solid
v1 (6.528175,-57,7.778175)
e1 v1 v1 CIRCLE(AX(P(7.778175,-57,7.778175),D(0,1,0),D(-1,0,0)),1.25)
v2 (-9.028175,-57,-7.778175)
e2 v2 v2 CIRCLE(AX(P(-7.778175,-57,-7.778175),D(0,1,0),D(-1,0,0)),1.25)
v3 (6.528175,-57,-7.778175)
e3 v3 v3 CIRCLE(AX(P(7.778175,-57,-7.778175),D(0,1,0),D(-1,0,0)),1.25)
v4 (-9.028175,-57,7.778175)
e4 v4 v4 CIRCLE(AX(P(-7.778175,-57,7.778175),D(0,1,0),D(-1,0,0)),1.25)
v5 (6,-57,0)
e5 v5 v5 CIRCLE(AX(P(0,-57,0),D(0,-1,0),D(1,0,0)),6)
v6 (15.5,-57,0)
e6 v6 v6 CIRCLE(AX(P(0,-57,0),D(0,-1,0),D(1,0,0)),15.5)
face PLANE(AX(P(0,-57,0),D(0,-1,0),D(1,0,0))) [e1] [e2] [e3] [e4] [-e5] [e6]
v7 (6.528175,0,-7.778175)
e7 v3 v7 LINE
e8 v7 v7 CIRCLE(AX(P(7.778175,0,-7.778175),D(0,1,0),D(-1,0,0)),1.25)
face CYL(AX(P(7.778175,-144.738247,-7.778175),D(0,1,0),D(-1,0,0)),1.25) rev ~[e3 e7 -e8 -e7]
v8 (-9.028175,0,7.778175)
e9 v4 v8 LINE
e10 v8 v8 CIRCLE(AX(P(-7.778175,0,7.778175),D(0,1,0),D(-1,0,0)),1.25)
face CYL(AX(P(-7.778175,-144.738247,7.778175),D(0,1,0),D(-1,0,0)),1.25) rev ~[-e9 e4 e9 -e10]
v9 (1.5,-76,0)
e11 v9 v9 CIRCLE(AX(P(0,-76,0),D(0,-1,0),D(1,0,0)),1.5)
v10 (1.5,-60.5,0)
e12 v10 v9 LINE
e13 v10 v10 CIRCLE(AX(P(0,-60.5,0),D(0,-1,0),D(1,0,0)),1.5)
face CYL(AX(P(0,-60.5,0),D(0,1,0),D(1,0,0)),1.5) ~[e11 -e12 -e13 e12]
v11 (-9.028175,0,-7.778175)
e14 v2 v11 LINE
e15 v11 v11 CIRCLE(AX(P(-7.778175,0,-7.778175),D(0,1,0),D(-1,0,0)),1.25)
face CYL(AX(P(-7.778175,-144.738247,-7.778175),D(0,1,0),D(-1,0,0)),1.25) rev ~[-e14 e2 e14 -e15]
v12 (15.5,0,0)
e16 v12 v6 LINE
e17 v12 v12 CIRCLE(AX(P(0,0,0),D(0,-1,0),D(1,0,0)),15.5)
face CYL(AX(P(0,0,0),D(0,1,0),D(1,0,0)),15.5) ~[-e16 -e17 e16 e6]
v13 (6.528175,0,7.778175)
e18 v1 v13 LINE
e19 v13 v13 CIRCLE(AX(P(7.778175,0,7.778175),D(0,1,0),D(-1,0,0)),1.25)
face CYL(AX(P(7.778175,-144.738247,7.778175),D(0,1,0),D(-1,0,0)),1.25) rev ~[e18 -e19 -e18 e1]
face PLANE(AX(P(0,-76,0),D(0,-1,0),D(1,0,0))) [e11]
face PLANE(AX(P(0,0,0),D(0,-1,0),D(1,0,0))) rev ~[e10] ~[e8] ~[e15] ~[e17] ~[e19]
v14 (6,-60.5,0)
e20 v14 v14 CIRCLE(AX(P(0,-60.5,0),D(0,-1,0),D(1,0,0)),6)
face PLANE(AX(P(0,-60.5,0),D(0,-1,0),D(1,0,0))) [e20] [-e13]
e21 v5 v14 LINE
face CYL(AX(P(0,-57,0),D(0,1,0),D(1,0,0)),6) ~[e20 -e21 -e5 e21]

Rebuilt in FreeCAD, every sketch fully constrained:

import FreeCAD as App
import Part
import Sketcher

V = App.Vector

doc = App.newDocument("Part")
body = doc.addObject("PartDesign::Body", "Body")

sketch1 = body.newObject("Sketcher::SketchObject", "Sketch")
sketch1.AttachmentSupport = (doc.getObject("XZ_Plane"), [""])
sketch1.MapMode = "FlatFace"
sketch1.addGeometry(Part.Circle(V(0, 0, 0), V(0, 0, 1), 16), False)
sketch1.addConstraint([
    Sketcher.Constraint("Coincident", 0, 3, -1, 1),
    Sketcher.Constraint("Diameter", 0, 31.0),
])
pad1 = body.newObject("PartDesign::Pad", "Pad")
pad1.Profile = sketch1
pad1.Length = 57

sketch2 = body.newObject("Sketcher::SketchObject", "Sketch001")
sketch2.AttachmentSupport = (doc.getObject("XZ_Plane"), [""])
sketch2.MapMode = "FlatFace"
sketch2.AttachmentOffset = App.Placement(V(0, 0, 57), App.Rotation())
sketch2.addGeometry(Part.Circle(V(0, 0, 0), V(0, 0, 1), 6), False)
sketch2.addConstraint([
    Sketcher.Constraint("Coincident", 0, 3, -1, 1),
    Sketcher.Constraint("Diameter", 0, 12.0),
])
pad2 = body.newObject("PartDesign::Pad", "Pad001")
pad2.Profile = sketch2
pad2.Length = 3.5

sketch3 = body.newObject("Sketcher::SketchObject", "Sketch002")
sketch3.AttachmentSupport = (doc.getObject("XZ_Plane"), [""])
sketch3.MapMode = "FlatFace"
sketch3.AttachmentOffset = App.Placement(V(0, 0, 60.5), App.Rotation())
sketch3.addGeometry(Part.Circle(V(0, 0, 0), V(0, 0, 1), 1.5), False)
sketch3.addConstraint([
    Sketcher.Constraint("Coincident", 0, 3, -1, 1),
    Sketcher.Constraint("Diameter", 0, 3.0),
])
pad3 = body.newObject("PartDesign::Pad", "Pad002")
pad3.Profile = sketch3
pad3.Length = 15.5

sketch4 = body.newObject("Sketcher::SketchObject", "Sketch003")
sketch4.AttachmentSupport = (doc.getObject("XZ_Plane"), [""])
sketch4.MapMode = "FlatFace"
sketch4.AttachmentOffset = App.Placement(V(0, 0, 57), App.Rotation())
sketch4.addGeometry([
    Part.Circle(V(-7.8, 7.8, 0), V(0, 0, 1), 1.2),
    Part.Circle(V(7.8, 7.8, 0), V(0, 0, 1), 1.2),
    Part.Circle(V(7.8, -7.8, 0), V(0, 0, 1), 1.2),
    Part.Circle(V(-7.8, -7.8, 0), V(0, 0, 1), 1.2),
], False)
sketch4.addConstraint([
    Sketcher.Constraint("Equal", 0, 1),
    Sketcher.Constraint("Equal", 1, 2),
    Sketcher.Constraint("Equal", 2, 3),
    Sketcher.Constraint("Symmetric", 0, 3, 2, 3, -1, 1),
    Sketcher.Constraint("Symmetric", 1, 3, 3, 3, -1, 1),
    Sketcher.Constraint("Symmetric", 0, 3, 1, 3, -2),
    Sketcher.Constraint("Diameter", 0, 2.5),
    Sketcher.Constraint("DistanceX", 0, 3, 1, 3, 15.556349),
    Sketcher.Constraint("DistanceY", 2, 3, 1, 3, 15.556349),
])
doc.recompute()
hole = body.newObject("PartDesign::Hole", "Hole")
hole.Profile = sketch4
hole.ThreadType = "None"
hole.Diameter = 2.5
hole.DepthType = "ThroughAll"

doc.recompute()
